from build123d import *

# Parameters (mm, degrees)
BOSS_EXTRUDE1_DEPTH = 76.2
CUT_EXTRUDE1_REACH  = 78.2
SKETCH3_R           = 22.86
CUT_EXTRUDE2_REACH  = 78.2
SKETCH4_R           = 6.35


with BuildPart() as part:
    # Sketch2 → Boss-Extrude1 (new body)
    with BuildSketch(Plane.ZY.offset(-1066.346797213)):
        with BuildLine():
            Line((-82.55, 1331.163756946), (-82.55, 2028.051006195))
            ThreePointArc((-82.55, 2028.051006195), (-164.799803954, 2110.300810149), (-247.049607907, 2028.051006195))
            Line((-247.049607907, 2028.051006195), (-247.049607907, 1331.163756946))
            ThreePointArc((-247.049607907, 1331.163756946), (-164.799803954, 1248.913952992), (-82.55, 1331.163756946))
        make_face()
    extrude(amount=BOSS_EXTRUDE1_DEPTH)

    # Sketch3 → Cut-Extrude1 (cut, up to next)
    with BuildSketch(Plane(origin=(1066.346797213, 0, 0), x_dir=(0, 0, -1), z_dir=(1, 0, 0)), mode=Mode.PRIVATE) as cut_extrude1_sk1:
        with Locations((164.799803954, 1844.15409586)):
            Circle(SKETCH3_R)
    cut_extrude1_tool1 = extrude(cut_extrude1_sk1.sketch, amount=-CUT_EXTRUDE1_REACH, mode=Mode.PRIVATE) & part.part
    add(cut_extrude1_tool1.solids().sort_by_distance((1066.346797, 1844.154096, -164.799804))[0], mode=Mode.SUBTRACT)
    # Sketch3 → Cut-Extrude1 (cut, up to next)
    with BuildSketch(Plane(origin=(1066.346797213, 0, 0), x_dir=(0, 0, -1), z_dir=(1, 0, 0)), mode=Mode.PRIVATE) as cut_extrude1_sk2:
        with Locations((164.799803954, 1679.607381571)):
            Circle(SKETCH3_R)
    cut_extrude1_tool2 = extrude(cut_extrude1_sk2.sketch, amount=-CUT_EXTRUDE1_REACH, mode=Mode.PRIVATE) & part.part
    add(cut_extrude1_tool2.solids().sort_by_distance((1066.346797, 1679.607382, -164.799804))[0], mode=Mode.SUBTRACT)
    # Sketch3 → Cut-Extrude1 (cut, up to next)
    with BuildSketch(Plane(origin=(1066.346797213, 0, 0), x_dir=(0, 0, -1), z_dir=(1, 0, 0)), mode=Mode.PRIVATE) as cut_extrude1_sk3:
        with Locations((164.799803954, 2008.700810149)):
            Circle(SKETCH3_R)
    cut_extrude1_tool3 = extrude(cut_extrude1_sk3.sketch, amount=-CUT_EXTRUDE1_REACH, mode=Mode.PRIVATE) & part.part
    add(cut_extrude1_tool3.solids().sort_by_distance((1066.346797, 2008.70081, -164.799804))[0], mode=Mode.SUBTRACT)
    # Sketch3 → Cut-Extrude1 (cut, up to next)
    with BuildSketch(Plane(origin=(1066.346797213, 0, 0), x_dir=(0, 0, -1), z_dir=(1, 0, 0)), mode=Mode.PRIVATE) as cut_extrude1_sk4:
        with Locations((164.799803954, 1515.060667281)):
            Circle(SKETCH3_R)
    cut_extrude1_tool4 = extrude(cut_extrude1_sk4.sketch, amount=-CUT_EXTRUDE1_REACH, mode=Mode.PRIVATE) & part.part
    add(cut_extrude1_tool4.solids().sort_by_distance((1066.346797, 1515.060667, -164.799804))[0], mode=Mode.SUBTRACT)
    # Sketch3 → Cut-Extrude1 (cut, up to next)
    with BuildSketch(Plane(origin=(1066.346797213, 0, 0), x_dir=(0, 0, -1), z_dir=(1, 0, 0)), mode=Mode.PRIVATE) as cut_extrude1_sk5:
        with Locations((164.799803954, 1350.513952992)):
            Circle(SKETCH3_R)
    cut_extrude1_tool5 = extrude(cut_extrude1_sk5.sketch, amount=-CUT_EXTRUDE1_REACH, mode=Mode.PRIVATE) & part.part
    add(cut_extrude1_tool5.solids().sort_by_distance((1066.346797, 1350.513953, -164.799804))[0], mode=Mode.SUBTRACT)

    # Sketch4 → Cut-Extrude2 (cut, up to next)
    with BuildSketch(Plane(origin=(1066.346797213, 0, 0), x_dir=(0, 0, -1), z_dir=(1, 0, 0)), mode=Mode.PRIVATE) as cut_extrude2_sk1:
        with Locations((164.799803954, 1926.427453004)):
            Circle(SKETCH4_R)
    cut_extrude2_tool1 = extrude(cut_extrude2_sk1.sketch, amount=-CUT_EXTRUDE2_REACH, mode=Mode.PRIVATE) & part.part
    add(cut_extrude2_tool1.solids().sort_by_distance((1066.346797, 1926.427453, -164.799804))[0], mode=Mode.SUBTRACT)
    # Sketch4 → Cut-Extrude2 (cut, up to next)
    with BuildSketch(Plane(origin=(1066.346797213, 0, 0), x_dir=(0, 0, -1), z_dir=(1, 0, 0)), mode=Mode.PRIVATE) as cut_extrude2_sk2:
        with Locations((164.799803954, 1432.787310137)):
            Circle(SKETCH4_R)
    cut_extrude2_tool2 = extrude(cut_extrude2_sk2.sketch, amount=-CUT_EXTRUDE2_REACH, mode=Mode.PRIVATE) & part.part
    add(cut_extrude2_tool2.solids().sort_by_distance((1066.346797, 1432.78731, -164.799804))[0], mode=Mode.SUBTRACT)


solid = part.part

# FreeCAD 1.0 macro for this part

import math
import FreeCAD as App
import Part
import Sketcher
Q = App.Units.Quantity

doc = App.newDocument("Part")
params = doc.addObject("Spreadsheet::Sheet", "Params")
for row, (alias, value) in enumerate([
    ("pad1_length", "3 in"),
    ("sketch2_diameter", "1.8 in"),
    ("sketch3_diameter", "1.8 in"),
    ("sketch4_diameter", "1.8 in"),
    ("sketch5_diameter", "1.8 in"),
    ("sketch6_diameter", "1.8 in"),
    ("sketch7_diameter", "0.5 in"),
    ("sketch8_diameter", "0.5 in"),
], start=1):
    params.set(f"A{row}", alias)
    params.set(f"B{row}", "=" + value)
    params.setAlias(f"B{row}", alias)

body = doc.addObject("PartDesign::Body", "Body")

# Sketch on YZ plane
sketch1 = doc.addObject("Sketcher::SketchObject", "Sketch")
body.addObject(sketch1)
sketch1.AttachmentSupport = (doc.YZ_Plane, [""])
sketch1.MapMode = "FlatFace"
sketch1.AttachmentOffset = App.Placement(App.Vector(0, 0, 1066.346797), App.Rotation())
sketch1.addGeometry(Part.LineSegment(App.Vector(1331, -83, 0), App.Vector(2028, -83, 0)), False)
sketch1.addGeometry(Part.ArcOfCircle(Part.Circle(App.Vector(2028, -165, 0), App.Vector(0, 0, 1), 82), math.radians(-90), math.radians(90)), False)
sketch1.addGeometry(Part.LineSegment(App.Vector(2028, -247, 0), App.Vector(1331, -247, 0)), False)
sketch1.addGeometry(Part.ArcOfCircle(Part.Circle(App.Vector(1331, -165, 0), App.Vector(0, 0, 1), 82), math.radians(90), math.radians(270)), False)
sketch1.addConstraint(Sketcher.Constraint("Tangent", 0, 2, 1, 2))
sketch1.addConstraint(Sketcher.Constraint("Tangent", 1, 1, 2, 1))
sketch1.addConstraint(Sketcher.Constraint("Tangent", 2, 2, 3, 2))
sketch1.addConstraint(Sketcher.Constraint("Tangent", 3, 1, 0, 1))
sketch1.addConstraint(Sketcher.Constraint("Horizontal", 0))
sketch1.addConstraint(Sketcher.Constraint("Horizontal", 2))
sketch1.addConstraint(Sketcher.Constraint("DistanceY", 0, 2, -1, 1, Q("3.25 in")))
sketch1.addConstraint(Sketcher.Constraint("Radius", 1, 82.249804))
sketch1.addConstraint(Sketcher.Constraint("DistanceX", 0, 1, 0, 2, 696.887249))
sketch1.addConstraint(Sketcher.Constraint("DistanceX", -1, 1, 1, 3, 2028.051006))
pad1 = doc.addObject("PartDesign::Pad", "Pad")
body.addObject(pad1)
pad1.Profile = sketch1
pad1.setExpression("Length", "Params.pad1_length")
pad1.Reversed = True

# Sketch on YZ plane
sketch2 = doc.addObject("Sketcher::SketchObject", "Sketch001")
body.addObject(sketch2)
sketch2.AttachmentSupport = (doc.YZ_Plane, [""])
sketch2.MapMode = "FlatFace"
sketch2.AttachmentOffset = App.Placement(App.Vector(0, 0, 1066.346797), App.Rotation())
sketch2.addGeometry(Part.Circle(App.Vector(1844, -165, 0), App.Vector(0, 0, 1), 23), False)
sketch2.addConstraint(Sketcher.Constraint("Diameter", 0, Q("1.8 in")))
sketch2.addConstraint(Sketcher.Constraint("DistanceX", -1, 1, 0, 3, 1844.154096))
sketch2.addConstraint(Sketcher.Constraint("DistanceY", 0, 3, -1, 1, 164.799804))
sketch2.setExpression("Constraints[0]", "Params.sketch2_diameter")
pocket1 = doc.addObject("PartDesign::Pocket", "Pocket")
body.addObject(pocket1)
pocket1.Profile = sketch2
pocket1.Type = "UpToFirst"

# Sketch on YZ plane
sketch3 = doc.addObject("Sketcher::SketchObject", "Sketch002")
body.addObject(sketch3)
sketch3.AttachmentSupport = (doc.YZ_Plane, [""])
sketch3.MapMode = "FlatFace"
sketch3.AttachmentOffset = App.Placement(App.Vector(0, 0, 1066.346797), App.Rotation())
sketch3.addGeometry(Part.Circle(App.Vector(1680, -165, 0), App.Vector(0, 0, 1), 23), False)
sketch3.addConstraint(Sketcher.Constraint("Diameter", 0, Q("1.8 in")))
sketch3.addConstraint(Sketcher.Constraint("DistanceX", -1, 1, 0, 3, 1679.607382))
sketch3.addConstraint(Sketcher.Constraint("DistanceY", 0, 3, -1, 1, 164.799804))
sketch3.setExpression("Constraints[0]", "Params.sketch3_diameter")
pocket2 = doc.addObject("PartDesign::Pocket", "Pocket001")
body.addObject(pocket2)
pocket2.Profile = sketch3
pocket2.Type = "UpToFirst"

# Sketch on YZ plane
sketch4 = doc.addObject("Sketcher::SketchObject", "Sketch003")
body.addObject(sketch4)
sketch4.AttachmentSupport = (doc.YZ_Plane, [""])
sketch4.MapMode = "FlatFace"
sketch4.AttachmentOffset = App.Placement(App.Vector(0, 0, 1066.346797), App.Rotation())
sketch4.addGeometry(Part.Circle(App.Vector(2009, -165, 0), App.Vector(0, 0, 1), 23), False)
sketch4.addConstraint(Sketcher.Constraint("Diameter", 0, Q("1.8 in")))
sketch4.addConstraint(Sketcher.Constraint("DistanceX", -1, 1, 0, 3, 2008.70081))
sketch4.addConstraint(Sketcher.Constraint("DistanceY", 0, 3, -1, 1, 164.799804))
sketch4.setExpression("Constraints[0]", "Params.sketch4_diameter")
pocket3 = doc.addObject("PartDesign::Pocket", "Pocket002")
body.addObject(pocket3)
pocket3.Profile = sketch4
pocket3.Type = "UpToFirst"

# Sketch on YZ plane
sketch5 = doc.addObject("Sketcher::SketchObject", "Sketch004")
body.addObject(sketch5)
sketch5.AttachmentSupport = (doc.YZ_Plane, [""])
sketch5.MapMode = "FlatFace"
sketch5.AttachmentOffset = App.Placement(App.Vector(0, 0, 1066.346797), App.Rotation())
sketch5.addGeometry(Part.Circle(App.Vector(1515, -165, 0), App.Vector(0, 0, 1), 23), False)
sketch5.addConstraint(Sketcher.Constraint("Diameter", 0, Q("1.8 in")))
sketch5.addConstraint(Sketcher.Constraint("DistanceX", -1, 1, 0, 3, 1515.060667))
sketch5.addConstraint(Sketcher.Constraint("DistanceY", 0, 3, -1, 1, 164.799804))
sketch5.setExpression("Constraints[0]", "Params.sketch5_diameter")
pocket4 = doc.addObject("PartDesign::Pocket", "Pocket003")
body.addObject(pocket4)
pocket4.Profile = sketch5
pocket4.Type = "UpToFirst"

# Sketch on YZ plane
sketch6 = doc.addObject("Sketcher::SketchObject", "Sketch005")
body.addObject(sketch6)
sketch6.AttachmentSupport = (doc.YZ_Plane, [""])
sketch6.MapMode = "FlatFace"
sketch6.AttachmentOffset = App.Placement(App.Vector(0, 0, 1066.346797), App.Rotation())
sketch6.addGeometry(Part.Circle(App.Vector(1351, -165, 0), App.Vector(0, 0, 1), 23), False)
sketch6.addConstraint(Sketcher.Constraint("Diameter", 0, Q("1.8 in")))
sketch6.addConstraint(Sketcher.Constraint("DistanceX", -1, 1, 0, 3, 1350.513953))
sketch6.addConstraint(Sketcher.Constraint("DistanceY", 0, 3, -1, 1, 164.799804))
sketch6.setExpression("Constraints[0]", "Params.sketch6_diameter")
pocket5 = doc.addObject("PartDesign::Pocket", "Pocket004")
body.addObject(pocket5)
pocket5.Profile = sketch6
pocket5.Type = "UpToFirst"

# Sketch on YZ plane
sketch7 = doc.addObject("Sketcher::SketchObject", "Sketch006")
body.addObject(sketch7)
sketch7.AttachmentSupport = (doc.YZ_Plane, [""])
sketch7.MapMode = "FlatFace"
sketch7.AttachmentOffset = App.Placement(App.Vector(0, 0, 1066.346797), App.Rotation())
sketch7.addGeometry(Part.Circle(App.Vector(1926, -165, 0), App.Vector(0, 0, 1), 6), False)
sketch7.addConstraint(Sketcher.Constraint("Diameter", 0, Q("0.5 in")))
sketch7.addConstraint(Sketcher.Constraint("DistanceX", -1, 1, 0, 3, 1926.427453))
sketch7.addConstraint(Sketcher.Constraint("DistanceY", 0, 3, -1, 1, 164.799804))
sketch7.setExpression("Constraints[0]", "Params.sketch7_diameter")
pocket6 = doc.addObject("PartDesign::Pocket", "Pocket005")
body.addObject(pocket6)
pocket6.Profile = sketch7
pocket6.Type = "UpToFirst"

# Sketch on YZ plane
sketch8 = doc.addObject("Sketcher::SketchObject", "Sketch007")
body.addObject(sketch8)
sketch8.AttachmentSupport = (doc.YZ_Plane, [""])
sketch8.MapMode = "FlatFace"
sketch8.AttachmentOffset = App.Placement(App.Vector(0, 0, 1066.346797), App.Rotation())
sketch8.addGeometry(Part.Circle(App.Vector(1433, -165, 0), App.Vector(0, 0, 1), 6), False)
sketch8.addConstraint(Sketcher.Constraint("Diameter", 0, Q("0.5 in")))
sketch8.addConstraint(Sketcher.Constraint("DistanceX", -1, 1, 0, 3, 1432.78731))
sketch8.addConstraint(Sketcher.Constraint("DistanceY", 0, 3, -1, 1, 164.799804))
sketch8.setExpression("Constraints[0]", "Params.sketch8_diameter")
pocket7 = doc.addObject("PartDesign::Pocket", "Pocket006")
body.addObject(pocket7)
pocket7.Profile = sketch8
pocket7.Type = "UpToFirst"

doc.recompute()
